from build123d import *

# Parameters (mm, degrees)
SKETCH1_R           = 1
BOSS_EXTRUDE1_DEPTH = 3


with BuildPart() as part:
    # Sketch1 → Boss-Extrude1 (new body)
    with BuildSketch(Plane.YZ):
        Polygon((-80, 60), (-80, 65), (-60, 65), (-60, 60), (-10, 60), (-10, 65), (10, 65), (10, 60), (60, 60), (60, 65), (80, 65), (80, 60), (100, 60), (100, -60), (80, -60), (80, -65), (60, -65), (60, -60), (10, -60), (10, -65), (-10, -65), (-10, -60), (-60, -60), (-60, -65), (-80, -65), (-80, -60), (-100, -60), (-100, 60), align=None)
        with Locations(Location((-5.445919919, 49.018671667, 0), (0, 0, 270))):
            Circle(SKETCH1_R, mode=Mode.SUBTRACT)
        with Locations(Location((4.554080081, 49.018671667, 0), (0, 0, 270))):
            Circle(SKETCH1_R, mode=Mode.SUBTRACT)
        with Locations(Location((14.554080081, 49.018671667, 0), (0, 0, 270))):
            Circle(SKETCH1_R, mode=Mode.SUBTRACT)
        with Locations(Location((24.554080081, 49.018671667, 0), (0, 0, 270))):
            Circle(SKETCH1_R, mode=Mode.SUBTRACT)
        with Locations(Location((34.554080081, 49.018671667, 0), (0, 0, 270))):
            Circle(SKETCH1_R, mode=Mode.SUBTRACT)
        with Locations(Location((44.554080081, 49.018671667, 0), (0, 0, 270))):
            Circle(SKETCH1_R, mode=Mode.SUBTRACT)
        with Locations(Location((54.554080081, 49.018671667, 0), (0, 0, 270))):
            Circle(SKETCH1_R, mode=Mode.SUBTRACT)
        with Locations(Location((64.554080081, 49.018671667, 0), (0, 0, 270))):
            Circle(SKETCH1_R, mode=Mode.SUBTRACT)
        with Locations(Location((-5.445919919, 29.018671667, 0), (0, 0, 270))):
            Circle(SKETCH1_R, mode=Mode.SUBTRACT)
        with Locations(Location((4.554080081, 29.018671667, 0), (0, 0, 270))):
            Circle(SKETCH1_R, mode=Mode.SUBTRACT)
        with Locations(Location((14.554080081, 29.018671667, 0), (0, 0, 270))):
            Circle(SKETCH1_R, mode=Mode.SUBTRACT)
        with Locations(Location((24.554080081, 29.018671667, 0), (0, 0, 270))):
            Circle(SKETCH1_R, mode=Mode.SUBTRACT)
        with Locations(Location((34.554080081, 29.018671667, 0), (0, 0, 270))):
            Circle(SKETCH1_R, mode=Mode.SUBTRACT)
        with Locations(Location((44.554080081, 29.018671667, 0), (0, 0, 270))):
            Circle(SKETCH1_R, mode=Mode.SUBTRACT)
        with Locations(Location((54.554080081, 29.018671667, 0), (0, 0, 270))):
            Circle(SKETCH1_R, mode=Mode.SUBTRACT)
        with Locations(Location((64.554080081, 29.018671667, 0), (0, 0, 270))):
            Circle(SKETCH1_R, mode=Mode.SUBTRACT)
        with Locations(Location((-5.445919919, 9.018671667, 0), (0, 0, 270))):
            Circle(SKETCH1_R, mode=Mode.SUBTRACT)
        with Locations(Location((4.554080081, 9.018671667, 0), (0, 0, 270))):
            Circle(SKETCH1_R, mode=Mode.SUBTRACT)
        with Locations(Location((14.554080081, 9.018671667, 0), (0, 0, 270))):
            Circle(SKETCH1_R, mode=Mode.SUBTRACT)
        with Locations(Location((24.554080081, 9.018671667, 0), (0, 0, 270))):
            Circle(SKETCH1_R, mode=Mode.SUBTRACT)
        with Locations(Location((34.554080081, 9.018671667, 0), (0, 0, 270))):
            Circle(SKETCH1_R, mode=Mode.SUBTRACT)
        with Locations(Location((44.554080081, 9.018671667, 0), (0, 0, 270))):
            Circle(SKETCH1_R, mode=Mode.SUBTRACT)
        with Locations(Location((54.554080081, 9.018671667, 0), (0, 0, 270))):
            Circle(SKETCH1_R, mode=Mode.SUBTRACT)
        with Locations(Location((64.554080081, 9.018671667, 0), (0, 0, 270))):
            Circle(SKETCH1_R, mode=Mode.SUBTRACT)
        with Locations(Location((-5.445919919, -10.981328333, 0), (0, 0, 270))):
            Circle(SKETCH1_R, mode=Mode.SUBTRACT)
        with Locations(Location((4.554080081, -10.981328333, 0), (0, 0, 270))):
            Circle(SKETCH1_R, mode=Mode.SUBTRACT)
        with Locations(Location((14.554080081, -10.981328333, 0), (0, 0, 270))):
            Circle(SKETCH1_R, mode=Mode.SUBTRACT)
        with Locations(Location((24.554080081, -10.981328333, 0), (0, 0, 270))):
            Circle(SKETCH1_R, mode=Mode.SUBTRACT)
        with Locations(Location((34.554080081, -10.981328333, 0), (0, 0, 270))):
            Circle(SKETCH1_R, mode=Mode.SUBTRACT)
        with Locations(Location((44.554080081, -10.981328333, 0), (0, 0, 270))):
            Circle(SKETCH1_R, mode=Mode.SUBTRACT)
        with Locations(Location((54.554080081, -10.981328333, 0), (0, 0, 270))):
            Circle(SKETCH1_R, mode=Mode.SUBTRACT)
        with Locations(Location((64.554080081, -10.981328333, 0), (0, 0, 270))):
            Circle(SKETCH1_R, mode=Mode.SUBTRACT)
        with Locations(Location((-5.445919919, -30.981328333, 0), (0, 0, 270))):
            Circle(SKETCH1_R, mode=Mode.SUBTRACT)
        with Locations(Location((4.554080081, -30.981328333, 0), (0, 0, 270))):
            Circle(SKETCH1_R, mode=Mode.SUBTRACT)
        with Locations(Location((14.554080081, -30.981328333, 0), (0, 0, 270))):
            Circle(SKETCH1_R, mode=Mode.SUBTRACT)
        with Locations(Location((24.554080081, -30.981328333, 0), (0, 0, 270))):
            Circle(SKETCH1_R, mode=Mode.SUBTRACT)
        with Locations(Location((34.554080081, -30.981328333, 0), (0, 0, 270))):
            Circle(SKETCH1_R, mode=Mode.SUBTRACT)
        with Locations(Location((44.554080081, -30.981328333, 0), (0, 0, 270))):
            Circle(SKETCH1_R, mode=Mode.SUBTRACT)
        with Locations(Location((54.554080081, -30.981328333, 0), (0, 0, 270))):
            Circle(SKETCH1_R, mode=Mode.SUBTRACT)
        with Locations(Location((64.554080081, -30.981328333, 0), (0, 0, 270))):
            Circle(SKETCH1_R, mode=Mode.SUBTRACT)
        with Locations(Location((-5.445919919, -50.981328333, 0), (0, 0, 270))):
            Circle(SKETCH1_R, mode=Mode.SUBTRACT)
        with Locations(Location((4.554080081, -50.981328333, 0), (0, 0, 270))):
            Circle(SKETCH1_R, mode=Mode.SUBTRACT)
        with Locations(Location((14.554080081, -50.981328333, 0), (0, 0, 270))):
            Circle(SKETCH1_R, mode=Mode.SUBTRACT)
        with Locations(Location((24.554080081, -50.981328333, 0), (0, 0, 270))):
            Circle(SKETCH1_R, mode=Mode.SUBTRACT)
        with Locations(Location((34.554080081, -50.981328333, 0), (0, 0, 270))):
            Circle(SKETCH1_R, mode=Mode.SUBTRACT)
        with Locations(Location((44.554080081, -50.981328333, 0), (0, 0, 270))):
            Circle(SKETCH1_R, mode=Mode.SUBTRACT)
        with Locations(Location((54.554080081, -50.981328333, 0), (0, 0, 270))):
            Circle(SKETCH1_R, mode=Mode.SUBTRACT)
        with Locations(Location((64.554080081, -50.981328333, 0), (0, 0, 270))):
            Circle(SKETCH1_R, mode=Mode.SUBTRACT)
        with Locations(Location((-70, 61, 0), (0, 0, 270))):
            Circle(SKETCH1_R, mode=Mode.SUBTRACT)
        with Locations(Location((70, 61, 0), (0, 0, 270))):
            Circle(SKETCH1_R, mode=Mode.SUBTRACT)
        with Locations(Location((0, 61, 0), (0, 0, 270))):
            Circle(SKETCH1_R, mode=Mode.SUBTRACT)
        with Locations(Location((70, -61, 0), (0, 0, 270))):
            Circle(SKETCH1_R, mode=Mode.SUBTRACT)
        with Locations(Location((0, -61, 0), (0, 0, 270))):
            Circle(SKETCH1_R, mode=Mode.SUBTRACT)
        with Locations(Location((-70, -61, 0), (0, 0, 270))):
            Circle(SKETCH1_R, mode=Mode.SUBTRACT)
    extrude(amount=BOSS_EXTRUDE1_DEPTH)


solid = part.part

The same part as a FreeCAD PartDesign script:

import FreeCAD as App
import Part
import Sketcher


def add_polygon(sketch, points):
    """Adds a closed chain of lines whose ends are joined by coincident constraints."""
    first, n = sketch.GeometryCount, len(points)
    for a, b in zip(points, points[1:] + points[:1]):
        sketch.addGeometry(Part.LineSegment(App.Vector(*a, 0), App.Vector(*b, 0)), False)
    for i in range(n):
        sketch.addConstraint(Sketcher.Constraint("Coincident", first + i, 2, first + (i + 1) % n, 1))

doc = App.newDocument("Part")
body = doc.addObject("PartDesign::Body", "Body")

# Sketch on YZ plane
sketch1 = body.newObject("Sketcher::SketchObject", "Sketch")
sketch1.AttachmentSupport = (doc.getObject("YZ_Plane"), [""])
sketch1.MapMode = "FlatFace"
add_polygon(sketch1, [(-80, 65), (-80, 60), (-100, 60), (-100, -60), (-80, -60), (-80, -65), (-60, -65), (-60, -60), (-10, -60), (-10, -65), (10, -65), (10, -60), (60, -60), (60, -65), (80, -65), (80, -60), (100, -60), (100, 60), (80, 60), (80, 65), (60, 65), (60, 60), (10, 60), (10, 65), (-10, 65), (-10, 60), (-60, 60), (-60, 65)])  # lines 0-27
sketch1.addGeometry(Part.Circle(App.Vector(70, -61, 0), App.Vector(0, 0, 1), 1), False)  # 28
sketch1.addGeometry(Part.Circle(App.Vector(64.6, -51, 0), App.Vector(0, 0, 1), 1), False)  # 29
sketch1.addGeometry(Part.Circle(App.Vector(54.6, -51, 0), App.Vector(0, 0, 1), 1), False)  # 30
sketch1.addGeometry(Part.Circle(App.Vector(44.6, -51, 0), App.Vector(0, 0, 1), 1), False)  # 31
sketch1.addGeometry(Part.Circle(App.Vector(34.6, -51, 0), App.Vector(0, 0, 1), 1), False)  # 32
sketch1.addGeometry(Part.Circle(App.Vector(24.6, -51, 0), App.Vector(0, 0, 1), 1), False)  # 33
sketch1.addGeometry(Part.Circle(App.Vector(14.6, -51, 0), App.Vector(0, 0, 1), 1), False)  # 34
sketch1.addGeometry(Part.Circle(App.Vector(4.6, -51, 0), App.Vector(0, 0, 1), 1), False)  # 35
sketch1.addGeometry(Part.Circle(App.Vector(64.6, -31, 0), App.Vector(0, 0, 1), 1), False)  # 36
sketch1.addGeometry(Part.Circle(App.Vector(54.6, -31, 0), App.Vector(0, 0, 1), 1), False)  # 37
sketch1.addGeometry(Part.Circle(App.Vector(44.6, -31, 0), App.Vector(0, 0, 1), 1), False)  # 38
sketch1.addGeometry(Part.Circle(App.Vector(64.6, -11, 0), App.Vector(0, 0, 1), 1), False)  # 39
sketch1.addGeometry(Part.Circle(App.Vector(54.6, -11, 0), App.Vector(0, 0, 1), 1), False)  # 40
sketch1.addGeometry(Part.Circle(App.Vector(44.6, -11, 0), App.Vector(0, 0, 1), 1), False)  # 41
sketch1.addGeometry(Part.Circle(App.Vector(34.6, -31, 0), App.Vector(0, 0, 1), 1), False)  # 42
sketch1.addGeometry(Part.Circle(App.Vector(24.6, -31, 0), App.Vector(0, 0, 1), 1), False)  # 43
sketch1.addGeometry(Part.Circle(App.Vector(14.6, -31, 0), App.Vector(0, 0, 1), 1), False)  # 44
sketch1.addGeometry(Part.Circle(App.Vector(4.6, -31, 0), App.Vector(0, 0, 1), 1), False)  # 45
sketch1.addGeometry(Part.Circle(App.Vector(34.6, -11, 0), App.Vector(0, 0, 1), 1), False)  # 46
sketch1.addGeometry(Part.Circle(App.Vector(24.6, -11, 0), App.Vector(0, 0, 1), 1), False)  # 47
sketch1.addGeometry(Part.Circle(App.Vector(14.6, -11, 0), App.Vector(0, 0, 1), 1), False)  # 48
sketch1.addGeometry(Part.Circle(App.Vector(4.6, -11, 0), App.Vector(0, 0, 1), 1), False)  # 49
sketch1.addGeometry(Part.Circle(App.Vector(0, -61, 0), App.Vector(0, 0, 1), 1), False)  # 50
sketch1.addGeometry(Part.Circle(App.Vector(-5.4, -51, 0), App.Vector(0, 0, 1), 1), False)  # 51
sketch1.addGeometry(Part.Circle(App.Vector(-70, -61, 0), App.Vector(0, 0, 1), 1), False)  # 52
sketch1.addGeometry(Part.Circle(App.Vector(-5.4, -31, 0), App.Vector(0, 0, 1), 1), False)  # 53
sketch1.addGeometry(Part.Circle(App.Vector(-5.4, -11, 0), App.Vector(0, 0, 1), 1), False)  # 54
sketch1.addGeometry(Part.Circle(App.Vector(64.6, 9, 0), App.Vector(0, 0, 1), 1), False)  # 55
sketch1.addGeometry(Part.Circle(App.Vector(54.6, 9, 0), App.Vector(0, 0, 1), 1), False)  # 56
sketch1.addGeometry(Part.Circle(App.Vector(44.6, 9, 0), App.Vector(0, 0, 1), 1), False)  # 57
sketch1.addGeometry(Part.Circle(App.Vector(64.6, 29, 0), App.Vector(0, 0, 1), 1), False)  # 58
sketch1.addGeometry(Part.Circle(App.Vector(54.6, 29, 0), App.Vector(0, 0, 1), 1), False)  # 59
sketch1.addGeometry(Part.Circle(App.Vector(44.6, 29, 0), App.Vector(0, 0, 1), 1), False)  # 60
sketch1.addGeometry(Part.Circle(App.Vector(34.6, 9, 0), App.Vector(0, 0, 1), 1), False)  # 61
sketch1.addGeometry(Part.Circle(App.Vector(24.6, 9, 0), App.Vector(0, 0, 1), 1), False)  # 62
sketch1.addGeometry(Part.Circle(App.Vector(14.6, 9, 0), App.Vector(0, 0, 1), 1), False)  # 63
sketch1.addGeometry(Part.Circle(App.Vector(4.6, 9, 0), App.Vector(0, 0, 1), 1), False)  # 64
sketch1.addGeometry(Part.Circle(App.Vector(34.6, 29, 0), App.Vector(0, 0, 1), 1), False)  # 65
sketch1.addGeometry(Part.Circle(App.Vector(24.6, 29, 0), App.Vector(0, 0, 1), 1), False)  # 66
sketch1.addGeometry(Part.Circle(App.Vector(14.6, 29, 0), App.Vector(0, 0, 1), 1), False)  # 67
sketch1.addGeometry(Part.Circle(App.Vector(4.6, 29, 0), App.Vector(0, 0, 1), 1), False)  # 68
sketch1.addGeometry(Part.Circle(App.Vector(64.6, 49, 0), App.Vector(0, 0, 1), 1), False)  # 69
sketch1.addGeometry(Part.Circle(App.Vector(54.6, 49, 0), App.Vector(0, 0, 1), 1), False)  # 70
sketch1.addGeometry(Part.Circle(App.Vector(70, 61, 0), App.Vector(0, 0, 1), 1), False)  # 71
sketch1.addGeometry(Part.Circle(App.Vector(44.6, 49, 0), App.Vector(0, 0, 1), 1), False)  # 72
sketch1.addGeometry(Part.Circle(App.Vector(34.6, 49, 0), App.Vector(0, 0, 1), 1), False)  # 73
sketch1.addGeometry(Part.Circle(App.Vector(24.6, 49, 0), App.Vector(0, 0, 1), 1), False)  # 74
sketch1.addGeometry(Part.Circle(App.Vector(14.6, 49, 0), App.Vector(0, 0, 1), 1), False)  # 75
sketch1.addGeometry(Part.Circle(App.Vector(4.6, 49, 0), App.Vector(0, 0, 1), 1), False)  # 76
sketch1.addGeometry(Part.Circle(App.Vector(-5.4, 9, 0), App.Vector(0, 0, 1), 1), False)  # 77
sketch1.addGeometry(Part.Circle(App.Vector(-5.4, 29, 0), App.Vector(0, 0, 1), 1), False)  # 78
sketch1.addGeometry(Part.Circle(App.Vector(-5.4, 49, 0), App.Vector(0, 0, 1), 1), False)  # 79
sketch1.addGeometry(Part.Circle(App.Vector(0, 61, 0), App.Vector(0, 0, 1), 1), False)  # 80
sketch1.addGeometry(Part.Circle(App.Vector(-70, 61, 0), App.Vector(0, 0, 1), 1), False)  # 81
sketch1.addConstraint(Sketcher.Constraint("Vertical", 0))
sketch1.addConstraint(Sketcher.Constraint("Horizontal", 1))
sketch1.addConstraint(Sketcher.Constraint("Vertical", 2))
sketch1.addConstraint(Sketcher.Constraint("Horizontal", 3))
sketch1.addConstraint(Sketcher.Constraint("Vertical", 4))
sketch1.addConstraint(Sketcher.Constraint("Horizontal", 5))
sketch1.addConstraint(Sketcher.Constraint("Vertical", 6))
sketch1.addConstraint(Sketcher.Constraint("Horizontal", 7))
sketch1.addConstraint(Sketcher.Constraint("Vertical", 8))
sketch1.addConstraint(Sketcher.Constraint("Horizontal", 9))
sketch1.addConstraint(Sketcher.Constraint("Vertical", 10))
sketch1.addConstraint(Sketcher.Constraint("Horizontal", 11))
sketch1.addConstraint(Sketcher.Constraint("Vertical", 12))
sketch1.addConstraint(Sketcher.Constraint("Horizontal", 13))
sketch1.addConstraint(Sketcher.Constraint("Vertical", 14))
sketch1.addConstraint(Sketcher.Constraint("Horizontal", 15))
sketch1.addConstraint(Sketcher.Constraint("Vertical", 16))
sketch1.addConstraint(Sketcher.Constraint("Horizontal", 17))
sketch1.addConstraint(Sketcher.Constraint("Vertical", 18))
sketch1.addConstraint(Sketcher.Constraint("Horizontal", 19))
sketch1.addConstraint(Sketcher.Constraint("Vertical", 20))
sketch1.addConstraint(Sketcher.Constraint("Horizontal", 21))
sketch1.addConstraint(Sketcher.Constraint("Vertical", 22))
sketch1.addConstraint(Sketcher.Constraint("Horizontal", 23))
sketch1.addConstraint(Sketcher.Constraint("Vertical", 24))
sketch1.addConstraint(Sketcher.Constraint("Horizontal", 25))
sketch1.addConstraint(Sketcher.Constraint("Vertical", 26))
sketch1.addConstraint(Sketcher.Constraint("Horizontal", 27))
sketch1.addConstraint(Sketcher.Constraint("Equal", 28, 29))
sketch1.addConstraint(Sketcher.Constraint("Equal", 29, 30))
sketch1.addConstraint(Sketcher.Constraint("Equal", 30, 31))
sketch1.addConstraint(Sketcher.Constraint("Equal", 31, 32))
sketch1.addConstraint(Sketcher.Constraint("Equal", 32, 33))
sketch1.addConstraint(Sketcher.Constraint("Equal", 33, 34))
sketch1.addConstraint(Sketcher.Constraint("Equal", 34, 35))
sketch1.addConstraint(Sketcher.Constraint("Equal", 35, 36))
sketch1.addConstraint(Sketcher.Constraint("Equal", 36, 37))
sketch1.addConstraint(Sketcher.Constraint("Equal", 37, 38))
sketch1.addConstraint(Sketcher.Constraint("Equal", 38, 39))
sketch1.addConstraint(Sketcher.Constraint("Equal", 39, 40))
sketch1.addConstraint(Sketcher.Constraint("Equal", 40, 41))
sketch1.addConstraint(Sketcher.Constraint("Equal", 41, 42))
sketch1.addConstraint(Sketcher.Constraint("Equal", 42, 43))
sketch1.addConstraint(Sketcher.Constraint("Equal", 43, 44))
sketch1.addConstraint(Sketcher.Constraint("Equal", 44, 45))
sketch1.addConstraint(Sketcher.Constraint("Equal", 45, 46))
sketch1.addConstraint(Sketcher.Constraint("Equal", 46, 47))
sketch1.addConstraint(Sketcher.Constraint("Equal", 47, 48))
sketch1.addConstraint(Sketcher.Constraint("Equal", 48, 49))
sketch1.addConstraint(Sketcher.Constraint("Equal", 49, 50))
sketch1.addConstraint(Sketcher.Constraint("Equal", 50, 51))
sketch1.addConstraint(Sketcher.Constraint("Equal", 51, 52))
sketch1.addConstraint(Sketcher.Constraint("Equal", 52, 53))
sketch1.addConstraint(Sketcher.Constraint("Equal", 53, 54))
sketch1.addConstraint(Sketcher.Constraint("Equal", 54, 55))
sketch1.addConstraint(Sketcher.Constraint("Equal", 55, 56))
sketch1.addConstraint(Sketcher.Constraint("Equal", 56, 57))
sketch1.addConstraint(Sketcher.Constraint("Equal", 57, 58))
sketch1.addConstraint(Sketcher.Constraint("Equal", 58, 59))
sketch1.addConstraint(Sketcher.Constraint("Equal", 59, 60))
sketch1.addConstraint(Sketcher.Constraint("Equal", 60, 61))
sketch1.addConstraint(Sketcher.Constraint("Equal", 61, 62))
sketch1.addConstraint(Sketcher.Constraint("Equal", 62, 63))
sketch1.addConstraint(Sketcher.Constraint("Equal", 63, 64))
sketch1.addConstraint(Sketcher.Constraint("Equal", 64, 65))
sketch1.addConstraint(Sketcher.Constraint("Equal", 65, 66))
sketch1.addConstraint(Sketcher.Constraint("Equal", 66, 67))
sketch1.addConstraint(Sketcher.Constraint("Equal", 67, 68))
sketch1.addConstraint(Sketcher.Constraint("Equal", 68, 69))
sketch1.addConstraint(Sketcher.Constraint("Equal", 69, 70))
sketch1.addConstraint(Sketcher.Constraint("Equal", 70, 71))
sketch1.addConstraint(Sketcher.Constraint("Equal", 71, 72))
sketch1.addConstraint(Sketcher.Constraint("Equal", 72, 73))
sketch1.addConstraint(Sketcher.Constraint("Equal", 73, 74))
sketch1.addConstraint(Sketcher.Constraint("Equal", 74, 75))
sketch1.addConstraint(Sketcher.Constraint("Equal", 75, 76))
sketch1.addConstraint(Sketcher.Constraint("Equal", 76, 77))
sketch1.addConstraint(Sketcher.Constraint("Equal", 77, 78))
sketch1.addConstraint(Sketcher.Constraint("Equal", 78, 79))
sketch1.addConstraint(Sketcher.Constraint("Equal", 79, 80))
sketch1.addConstraint(Sketcher.Constraint("Equal", 80, 81))
sketch1.addConstraint(Sketcher.Constraint("Symmetric", 52, 3, 71, 3, -1, 1))
sketch1.addConstraint(Sketcher.Constraint("Symmetric", 50, 3, 80, 3, -1, 1))
sketch1.addConstraint(Sketcher.Constraint("Symmetric", 28, 3, 81, 3, -1, 1))
sketch1.addConstraint(Sketcher.Constraint("Symmetric", 0, 2, 14, 2, -1, 1))
sketch1.addConstraint(Sketcher.Constraint("Symmetric", 2, 2, 16, 2, -1, 1))
sketch1.addConstraint(Sketcher.Constraint("Symmetric", 4, 2, 18, 2, -1, 1))
sketch1.addConstraint(Sketcher.Constraint("Symmetric", 6, 2, 20, 2, -1, 1))
sketch1.addConstraint(Sketcher.Constraint("Symmetric", 8, 2, 22, 2, -1, 1))
sketch1.addConstraint(Sketcher.Constraint("Symmetric", 10, 2, 24, 2, -1, 1))
sketch1.addConstraint(Sketcher.Constraint("Symmetric", 12, 2, 26, 2, -1, 1))
sketch1.addConstraint(Sketcher.Constraint("Symmetric", 28, 3, 52, 3, -2))
sketch1.addConstraint(Sketcher.Constraint("Symmetric", 7, 2, 10, 2, -2))
sketch1.addConstraint(Sketcher.Constraint("Symmetric", 5, 2, 12, 2, -2))
sketch1.addConstraint(Sketcher.Constraint("Symmetric", 3, 2, 14, 2, -2))
sketch1.addConstraint(Sketcher.Constraint("PointOnObject", 50, 3, -2))
sketch1.addConstraint(Sketcher.Constraint("Horizontal", 29, 3, 30, 3))
sketch1.addConstraint(Sketcher.Constraint("Horizontal", 30, 3, 31, 3))
sketch1.addConstraint(Sketcher.Constraint("Horizontal", 31, 3, 32, 3))
sketch1.addConstraint(Sketcher.Constraint("Horizontal", 32, 3, 33, 3))
sketch1.addConstraint(Sketcher.Constraint("Horizontal", 33, 3, 34, 3))
sketch1.addConstraint(Sketcher.Constraint("Horizontal", 34, 3, 35, 3))
sketch1.addConstraint(Sketcher.Constraint("Horizontal", 36, 3, 37, 3))
sketch1.addConstraint(Sketcher.Constraint("Horizontal", 37, 3, 38, 3))
sketch1.addConstraint(Sketcher.Constraint("Horizontal", 39, 3, 40, 3))
sketch1.addConstraint(Sketcher.Constraint("Horizontal", 40, 3, 41, 3))
sketch1.addConstraint(Sketcher.Constraint("Horizontal", 38, 3, 42, 3))
sketch1.addConstraint(Sketcher.Constraint("Horizontal", 42, 3, 43, 3))
sketch1.addConstraint(Sketcher.Constraint("Horizontal", 43, 3, 44, 3))
sketch1.addConstraint(Sketcher.Constraint("Horizontal", 44, 3, 45, 3))
sketch1.addConstraint(Sketcher.Constraint("Horizontal", 41, 3, 46, 3))
sketch1.addConstraint(Sketcher.Constraint("Horizontal", 46, 3, 47, 3))
sketch1.addConstraint(Sketcher.Constraint("Horizontal", 47, 3, 48, 3))
sketch1.addConstraint(Sketcher.Constraint("Horizontal", 48, 3, 49, 3))
sketch1.addConstraint(Sketcher.Constraint("Horizontal", 28, 3, 50, 3))
sketch1.addConstraint(Sketcher.Constraint("Horizontal", 35, 3, 51, 3))
sketch1.addConstraint(Sketcher.Constraint("Horizontal", 45, 3, 53, 3))
sketch1.addConstraint(Sketcher.Constraint("Horizontal", 49, 3, 54, 3))
sketch1.addConstraint(Sketcher.Constraint("Horizontal", 55, 3, 56, 3))
sketch1.addConstraint(Sketcher.Constraint("Horizontal", 56, 3, 57, 3))
sketch1.addConstraint(Sketcher.Constraint("Horizontal", 58, 3, 59, 3))
sketch1.addConstraint(Sketcher.Constraint("Horizontal", 59, 3, 60, 3))
sketch1.addConstraint(Sketcher.Constraint("Horizontal", 57, 3, 61, 3))
sketch1.addConstraint(Sketcher.Constraint("Horizontal", 61, 3, 62, 3))
sketch1.addConstraint(Sketcher.Constraint("Horizontal", 62, 3, 63, 3))
sketch1.addConstraint(Sketcher.Constraint("Horizontal", 63, 3, 64, 3))
sketch1.addConstraint(Sketcher.Constraint("Horizontal", 60, 3, 65, 3))
sketch1.addConstraint(Sketcher.Constraint("Horizontal", 65, 3, 66, 3))
sketch1.addConstraint(Sketcher.Constraint("Horizontal", 66, 3, 67, 3))
sketch1.addConstraint(Sketcher.Constraint("Horizontal", 67, 3, 68, 3))
sketch1.addConstraint(Sketcher.Constraint("Horizontal", 69, 3, 70, 3))
sketch1.addConstraint(Sketcher.Constraint("Horizontal", 70, 3, 72, 3))
sketch1.addConstraint(Sketcher.Constraint("Horizontal", 72, 3, 73, 3))
sketch1.addConstraint(Sketcher.Constraint("Horizontal", 73, 3, 74, 3))
sketch1.addConstraint(Sketcher.Constraint("Horizontal", 74, 3, 75, 3))
sketch1.addConstraint(Sketcher.Constraint("Horizontal", 75, 3, 76, 3))
sketch1.addConstraint(Sketcher.Constraint("Horizontal", 64, 3, 77, 3))
sketch1.addConstraint(Sketcher.Constraint("Horizontal", 68, 3, 78, 3))
sketch1.addConstraint(Sketcher.Constraint("Horizontal", 76, 3, 79, 3))
sketch1.addConstraint(Sketcher.Constraint("Horizontal", 3, 2, 6, 2))
sketch1.addConstraint(Sketcher.Constraint("Horizontal", 5, 2, 8, 2))
sketch1.addConstraint(Sketcher.Constraint("Vertical", 29, 3, 36, 3))
sketch1.addConstraint(Sketcher.Constraint("Vertical", 30, 3, 37, 3))
sketch1.addConstraint(Sketcher.Constraint("Vertical", 31, 3, 38, 3))
sketch1.addConstraint(Sketcher.Constraint("Vertical", 36, 3, 39, 3))
sketch1.addConstraint(Sketcher.Constraint("Vertical", 37, 3, 40, 3))
sketch1.addConstraint(Sketcher.Constraint("Vertical", 38, 3, 41, 3))
sketch1.addConstraint(Sketcher.Constraint("Vertical", 32, 3, 42, 3))
sketch1.addConstraint(Sketcher.Constraint("Vertical", 33, 3, 43, 3))
sketch1.addConstraint(Sketcher.Constraint("Vertical", 34, 3, 44, 3))
sketch1.addConstraint(Sketcher.Constraint("Vertical", 35, 3, 45, 3))
sketch1.addConstraint(Sketcher.Constraint("Vertical", 42, 3, 46, 3))
sketch1.addConstraint(Sketcher.Constraint("Vertical", 43, 3, 47, 3))
sketch1.addConstraint(Sketcher.Constraint("Vertical", 44, 3, 48, 3))
sketch1.addConstraint(Sketcher.Constraint("Vertical", 45, 3, 49, 3))
sketch1.addConstraint(Sketcher.Constraint("Vertical", 51, 3, 53, 3))
sketch1.addConstraint(Sketcher.Constraint("Vertical", 53, 3, 54, 3))
sketch1.addConstraint(Sketcher.Constraint("Vertical", 39, 3, 55, 3))
sketch1.addConstraint(Sketcher.Constraint("Vertical", 40, 3, 56, 3))
sketch1.addConstraint(Sketcher.Constraint("Vertical", 41, 3, 57, 3))
sketch1.addConstraint(Sketcher.Constraint("Vertical", 55, 3, 58, 3))
sketch1.addConstraint(Sketcher.Constraint("Vertical", 56, 3, 59, 3))
sketch1.addConstraint(Sketcher.Constraint("Vertical", 57, 3, 60, 3))
sketch1.addConstraint(Sketcher.Constraint("Vertical", 46, 3, 61, 3))
sketch1.addConstraint(Sketcher.Constraint("Vertical", 47, 3, 62, 3))
sketch1.addConstraint(Sketcher.Constraint("Vertical", 48, 3, 63, 3))
sketch1.addConstraint(Sketcher.Constraint("Vertical", 49, 3, 64, 3))
sketch1.addConstraint(Sketcher.Constraint("Vertical", 61, 3, 65, 3))
sketch1.addConstraint(Sketcher.Constraint("Vertical", 62, 3, 66, 3))
sketch1.addConstraint(Sketcher.Constraint("Vertical", 63, 3, 67, 3))
sketch1.addConstraint(Sketcher.Constraint("Vertical", 64, 3, 68, 3))
sketch1.addConstraint(Sketcher.Constraint("Vertical", 58, 3, 69, 3))
sketch1.addConstraint(Sketcher.Constraint("Vertical", 59, 3, 70, 3))
sketch1.addConstraint(Sketcher.Constraint("Vertical", 60, 3, 72, 3))
sketch1.addConstraint(Sketcher.Constraint("Vertical", 65, 3, 73, 3))
sketch1.addConstraint(Sketcher.Constraint("Vertical", 66, 3, 74, 3))
sketch1.addConstraint(Sketcher.Constraint("Vertical", 67, 3, 75, 3))
sketch1.addConstraint(Sketcher.Constraint("Vertical", 68, 3, 76, 3))
sketch1.addConstraint(Sketcher.Constraint("Vertical", 54, 3, 77, 3))
sketch1.addConstraint(Sketcher.Constraint("Vertical", 77, 3, 78, 3))
sketch1.addConstraint(Sketcher.Constraint("Vertical", 78, 3, 79, 3))
sketch1.addConstraint(Sketcher.Constraint("Equal", 3, 5))
sketch1.addConstraint(Sketcher.Constraint("Equal", 5, 9))
sketch1.addConstraint(Sketcher.Constraint("Diameter", 28, 2.0))
sketch1.addConstraint(Sketcher.Constraint("DistanceX", 1, 2, 1, 1, 20.0))
sketch1.addConstraint(Sketcher.Constraint("DistanceX", 7, 1, 7, 2, 50.0))
sketch1.addConstraint(Sketcher.Constraint("DistanceY", 0, 2, 0, 1, 5.0))
sketch1.addConstraint(Sketcher.Constraint("DistanceY", 2, 2, 2, 1, 120.0))
sketch1.addConstraint(Sketcher.Constraint("DistanceX", -1, 1, 28, 3, 70.0))
sketch1.addConstraint(Sketcher.Constraint("DistanceY", 28, 3, -1, 1, 61.0))
sketch1.addConstraint(Sketcher.Constraint("DistanceX", -1, 1, 29, 3, 64.55408))
sketch1.addConstraint(Sketcher.Constraint("DistanceY", 29, 3, -1, 1, 50.981328))
sketch1.addConstraint(Sketcher.Constraint("DistanceX", -1, 1, 30, 3, 54.55408))
sketch1.addConstraint(Sketcher.Constraint("DistanceX", -1, 1, 31, 3, 44.55408))
sketch1.addConstraint(Sketcher.Constraint("DistanceX", -1, 1, 32, 3, 34.55408))
sketch1.addConstraint(Sketcher.Constraint("DistanceX", -1, 1, 33, 3, 24.55408))
sketch1.addConstraint(Sketcher.Constraint("DistanceX", -1, 1, 34, 3, 14.55408))
sketch1.addConstraint(Sketcher.Constraint("DistanceX", -1, 1, 35, 3, 4.55408))
sketch1.addConstraint(Sketcher.Constraint("DistanceY", 36, 3, -1, 1, 30.981328))
sketch1.addConstraint(Sketcher.Constraint("DistanceY", 39, 3, -1, 1, 10.981328))
sketch1.addConstraint(Sketcher.Constraint("DistanceX", 51, 3, -1, 1, 5.44592))
sketch1.addConstraint(Sketcher.Constraint("DistanceY", -1, 1, 55, 3, 9.018672))
sketch1.addConstraint(Sketcher.Constraint("DistanceY", -1, 1, 58, 3, 29.018672))
sketch1.addConstraint(Sketcher.Constraint("DistanceY", -1, 1, 69, 3, 49.018672))
pad1 = body.newObject("PartDesign::Pad", "Pad")
pad1.Profile = sketch1
pad1.Length = 3

doc.recompute()
